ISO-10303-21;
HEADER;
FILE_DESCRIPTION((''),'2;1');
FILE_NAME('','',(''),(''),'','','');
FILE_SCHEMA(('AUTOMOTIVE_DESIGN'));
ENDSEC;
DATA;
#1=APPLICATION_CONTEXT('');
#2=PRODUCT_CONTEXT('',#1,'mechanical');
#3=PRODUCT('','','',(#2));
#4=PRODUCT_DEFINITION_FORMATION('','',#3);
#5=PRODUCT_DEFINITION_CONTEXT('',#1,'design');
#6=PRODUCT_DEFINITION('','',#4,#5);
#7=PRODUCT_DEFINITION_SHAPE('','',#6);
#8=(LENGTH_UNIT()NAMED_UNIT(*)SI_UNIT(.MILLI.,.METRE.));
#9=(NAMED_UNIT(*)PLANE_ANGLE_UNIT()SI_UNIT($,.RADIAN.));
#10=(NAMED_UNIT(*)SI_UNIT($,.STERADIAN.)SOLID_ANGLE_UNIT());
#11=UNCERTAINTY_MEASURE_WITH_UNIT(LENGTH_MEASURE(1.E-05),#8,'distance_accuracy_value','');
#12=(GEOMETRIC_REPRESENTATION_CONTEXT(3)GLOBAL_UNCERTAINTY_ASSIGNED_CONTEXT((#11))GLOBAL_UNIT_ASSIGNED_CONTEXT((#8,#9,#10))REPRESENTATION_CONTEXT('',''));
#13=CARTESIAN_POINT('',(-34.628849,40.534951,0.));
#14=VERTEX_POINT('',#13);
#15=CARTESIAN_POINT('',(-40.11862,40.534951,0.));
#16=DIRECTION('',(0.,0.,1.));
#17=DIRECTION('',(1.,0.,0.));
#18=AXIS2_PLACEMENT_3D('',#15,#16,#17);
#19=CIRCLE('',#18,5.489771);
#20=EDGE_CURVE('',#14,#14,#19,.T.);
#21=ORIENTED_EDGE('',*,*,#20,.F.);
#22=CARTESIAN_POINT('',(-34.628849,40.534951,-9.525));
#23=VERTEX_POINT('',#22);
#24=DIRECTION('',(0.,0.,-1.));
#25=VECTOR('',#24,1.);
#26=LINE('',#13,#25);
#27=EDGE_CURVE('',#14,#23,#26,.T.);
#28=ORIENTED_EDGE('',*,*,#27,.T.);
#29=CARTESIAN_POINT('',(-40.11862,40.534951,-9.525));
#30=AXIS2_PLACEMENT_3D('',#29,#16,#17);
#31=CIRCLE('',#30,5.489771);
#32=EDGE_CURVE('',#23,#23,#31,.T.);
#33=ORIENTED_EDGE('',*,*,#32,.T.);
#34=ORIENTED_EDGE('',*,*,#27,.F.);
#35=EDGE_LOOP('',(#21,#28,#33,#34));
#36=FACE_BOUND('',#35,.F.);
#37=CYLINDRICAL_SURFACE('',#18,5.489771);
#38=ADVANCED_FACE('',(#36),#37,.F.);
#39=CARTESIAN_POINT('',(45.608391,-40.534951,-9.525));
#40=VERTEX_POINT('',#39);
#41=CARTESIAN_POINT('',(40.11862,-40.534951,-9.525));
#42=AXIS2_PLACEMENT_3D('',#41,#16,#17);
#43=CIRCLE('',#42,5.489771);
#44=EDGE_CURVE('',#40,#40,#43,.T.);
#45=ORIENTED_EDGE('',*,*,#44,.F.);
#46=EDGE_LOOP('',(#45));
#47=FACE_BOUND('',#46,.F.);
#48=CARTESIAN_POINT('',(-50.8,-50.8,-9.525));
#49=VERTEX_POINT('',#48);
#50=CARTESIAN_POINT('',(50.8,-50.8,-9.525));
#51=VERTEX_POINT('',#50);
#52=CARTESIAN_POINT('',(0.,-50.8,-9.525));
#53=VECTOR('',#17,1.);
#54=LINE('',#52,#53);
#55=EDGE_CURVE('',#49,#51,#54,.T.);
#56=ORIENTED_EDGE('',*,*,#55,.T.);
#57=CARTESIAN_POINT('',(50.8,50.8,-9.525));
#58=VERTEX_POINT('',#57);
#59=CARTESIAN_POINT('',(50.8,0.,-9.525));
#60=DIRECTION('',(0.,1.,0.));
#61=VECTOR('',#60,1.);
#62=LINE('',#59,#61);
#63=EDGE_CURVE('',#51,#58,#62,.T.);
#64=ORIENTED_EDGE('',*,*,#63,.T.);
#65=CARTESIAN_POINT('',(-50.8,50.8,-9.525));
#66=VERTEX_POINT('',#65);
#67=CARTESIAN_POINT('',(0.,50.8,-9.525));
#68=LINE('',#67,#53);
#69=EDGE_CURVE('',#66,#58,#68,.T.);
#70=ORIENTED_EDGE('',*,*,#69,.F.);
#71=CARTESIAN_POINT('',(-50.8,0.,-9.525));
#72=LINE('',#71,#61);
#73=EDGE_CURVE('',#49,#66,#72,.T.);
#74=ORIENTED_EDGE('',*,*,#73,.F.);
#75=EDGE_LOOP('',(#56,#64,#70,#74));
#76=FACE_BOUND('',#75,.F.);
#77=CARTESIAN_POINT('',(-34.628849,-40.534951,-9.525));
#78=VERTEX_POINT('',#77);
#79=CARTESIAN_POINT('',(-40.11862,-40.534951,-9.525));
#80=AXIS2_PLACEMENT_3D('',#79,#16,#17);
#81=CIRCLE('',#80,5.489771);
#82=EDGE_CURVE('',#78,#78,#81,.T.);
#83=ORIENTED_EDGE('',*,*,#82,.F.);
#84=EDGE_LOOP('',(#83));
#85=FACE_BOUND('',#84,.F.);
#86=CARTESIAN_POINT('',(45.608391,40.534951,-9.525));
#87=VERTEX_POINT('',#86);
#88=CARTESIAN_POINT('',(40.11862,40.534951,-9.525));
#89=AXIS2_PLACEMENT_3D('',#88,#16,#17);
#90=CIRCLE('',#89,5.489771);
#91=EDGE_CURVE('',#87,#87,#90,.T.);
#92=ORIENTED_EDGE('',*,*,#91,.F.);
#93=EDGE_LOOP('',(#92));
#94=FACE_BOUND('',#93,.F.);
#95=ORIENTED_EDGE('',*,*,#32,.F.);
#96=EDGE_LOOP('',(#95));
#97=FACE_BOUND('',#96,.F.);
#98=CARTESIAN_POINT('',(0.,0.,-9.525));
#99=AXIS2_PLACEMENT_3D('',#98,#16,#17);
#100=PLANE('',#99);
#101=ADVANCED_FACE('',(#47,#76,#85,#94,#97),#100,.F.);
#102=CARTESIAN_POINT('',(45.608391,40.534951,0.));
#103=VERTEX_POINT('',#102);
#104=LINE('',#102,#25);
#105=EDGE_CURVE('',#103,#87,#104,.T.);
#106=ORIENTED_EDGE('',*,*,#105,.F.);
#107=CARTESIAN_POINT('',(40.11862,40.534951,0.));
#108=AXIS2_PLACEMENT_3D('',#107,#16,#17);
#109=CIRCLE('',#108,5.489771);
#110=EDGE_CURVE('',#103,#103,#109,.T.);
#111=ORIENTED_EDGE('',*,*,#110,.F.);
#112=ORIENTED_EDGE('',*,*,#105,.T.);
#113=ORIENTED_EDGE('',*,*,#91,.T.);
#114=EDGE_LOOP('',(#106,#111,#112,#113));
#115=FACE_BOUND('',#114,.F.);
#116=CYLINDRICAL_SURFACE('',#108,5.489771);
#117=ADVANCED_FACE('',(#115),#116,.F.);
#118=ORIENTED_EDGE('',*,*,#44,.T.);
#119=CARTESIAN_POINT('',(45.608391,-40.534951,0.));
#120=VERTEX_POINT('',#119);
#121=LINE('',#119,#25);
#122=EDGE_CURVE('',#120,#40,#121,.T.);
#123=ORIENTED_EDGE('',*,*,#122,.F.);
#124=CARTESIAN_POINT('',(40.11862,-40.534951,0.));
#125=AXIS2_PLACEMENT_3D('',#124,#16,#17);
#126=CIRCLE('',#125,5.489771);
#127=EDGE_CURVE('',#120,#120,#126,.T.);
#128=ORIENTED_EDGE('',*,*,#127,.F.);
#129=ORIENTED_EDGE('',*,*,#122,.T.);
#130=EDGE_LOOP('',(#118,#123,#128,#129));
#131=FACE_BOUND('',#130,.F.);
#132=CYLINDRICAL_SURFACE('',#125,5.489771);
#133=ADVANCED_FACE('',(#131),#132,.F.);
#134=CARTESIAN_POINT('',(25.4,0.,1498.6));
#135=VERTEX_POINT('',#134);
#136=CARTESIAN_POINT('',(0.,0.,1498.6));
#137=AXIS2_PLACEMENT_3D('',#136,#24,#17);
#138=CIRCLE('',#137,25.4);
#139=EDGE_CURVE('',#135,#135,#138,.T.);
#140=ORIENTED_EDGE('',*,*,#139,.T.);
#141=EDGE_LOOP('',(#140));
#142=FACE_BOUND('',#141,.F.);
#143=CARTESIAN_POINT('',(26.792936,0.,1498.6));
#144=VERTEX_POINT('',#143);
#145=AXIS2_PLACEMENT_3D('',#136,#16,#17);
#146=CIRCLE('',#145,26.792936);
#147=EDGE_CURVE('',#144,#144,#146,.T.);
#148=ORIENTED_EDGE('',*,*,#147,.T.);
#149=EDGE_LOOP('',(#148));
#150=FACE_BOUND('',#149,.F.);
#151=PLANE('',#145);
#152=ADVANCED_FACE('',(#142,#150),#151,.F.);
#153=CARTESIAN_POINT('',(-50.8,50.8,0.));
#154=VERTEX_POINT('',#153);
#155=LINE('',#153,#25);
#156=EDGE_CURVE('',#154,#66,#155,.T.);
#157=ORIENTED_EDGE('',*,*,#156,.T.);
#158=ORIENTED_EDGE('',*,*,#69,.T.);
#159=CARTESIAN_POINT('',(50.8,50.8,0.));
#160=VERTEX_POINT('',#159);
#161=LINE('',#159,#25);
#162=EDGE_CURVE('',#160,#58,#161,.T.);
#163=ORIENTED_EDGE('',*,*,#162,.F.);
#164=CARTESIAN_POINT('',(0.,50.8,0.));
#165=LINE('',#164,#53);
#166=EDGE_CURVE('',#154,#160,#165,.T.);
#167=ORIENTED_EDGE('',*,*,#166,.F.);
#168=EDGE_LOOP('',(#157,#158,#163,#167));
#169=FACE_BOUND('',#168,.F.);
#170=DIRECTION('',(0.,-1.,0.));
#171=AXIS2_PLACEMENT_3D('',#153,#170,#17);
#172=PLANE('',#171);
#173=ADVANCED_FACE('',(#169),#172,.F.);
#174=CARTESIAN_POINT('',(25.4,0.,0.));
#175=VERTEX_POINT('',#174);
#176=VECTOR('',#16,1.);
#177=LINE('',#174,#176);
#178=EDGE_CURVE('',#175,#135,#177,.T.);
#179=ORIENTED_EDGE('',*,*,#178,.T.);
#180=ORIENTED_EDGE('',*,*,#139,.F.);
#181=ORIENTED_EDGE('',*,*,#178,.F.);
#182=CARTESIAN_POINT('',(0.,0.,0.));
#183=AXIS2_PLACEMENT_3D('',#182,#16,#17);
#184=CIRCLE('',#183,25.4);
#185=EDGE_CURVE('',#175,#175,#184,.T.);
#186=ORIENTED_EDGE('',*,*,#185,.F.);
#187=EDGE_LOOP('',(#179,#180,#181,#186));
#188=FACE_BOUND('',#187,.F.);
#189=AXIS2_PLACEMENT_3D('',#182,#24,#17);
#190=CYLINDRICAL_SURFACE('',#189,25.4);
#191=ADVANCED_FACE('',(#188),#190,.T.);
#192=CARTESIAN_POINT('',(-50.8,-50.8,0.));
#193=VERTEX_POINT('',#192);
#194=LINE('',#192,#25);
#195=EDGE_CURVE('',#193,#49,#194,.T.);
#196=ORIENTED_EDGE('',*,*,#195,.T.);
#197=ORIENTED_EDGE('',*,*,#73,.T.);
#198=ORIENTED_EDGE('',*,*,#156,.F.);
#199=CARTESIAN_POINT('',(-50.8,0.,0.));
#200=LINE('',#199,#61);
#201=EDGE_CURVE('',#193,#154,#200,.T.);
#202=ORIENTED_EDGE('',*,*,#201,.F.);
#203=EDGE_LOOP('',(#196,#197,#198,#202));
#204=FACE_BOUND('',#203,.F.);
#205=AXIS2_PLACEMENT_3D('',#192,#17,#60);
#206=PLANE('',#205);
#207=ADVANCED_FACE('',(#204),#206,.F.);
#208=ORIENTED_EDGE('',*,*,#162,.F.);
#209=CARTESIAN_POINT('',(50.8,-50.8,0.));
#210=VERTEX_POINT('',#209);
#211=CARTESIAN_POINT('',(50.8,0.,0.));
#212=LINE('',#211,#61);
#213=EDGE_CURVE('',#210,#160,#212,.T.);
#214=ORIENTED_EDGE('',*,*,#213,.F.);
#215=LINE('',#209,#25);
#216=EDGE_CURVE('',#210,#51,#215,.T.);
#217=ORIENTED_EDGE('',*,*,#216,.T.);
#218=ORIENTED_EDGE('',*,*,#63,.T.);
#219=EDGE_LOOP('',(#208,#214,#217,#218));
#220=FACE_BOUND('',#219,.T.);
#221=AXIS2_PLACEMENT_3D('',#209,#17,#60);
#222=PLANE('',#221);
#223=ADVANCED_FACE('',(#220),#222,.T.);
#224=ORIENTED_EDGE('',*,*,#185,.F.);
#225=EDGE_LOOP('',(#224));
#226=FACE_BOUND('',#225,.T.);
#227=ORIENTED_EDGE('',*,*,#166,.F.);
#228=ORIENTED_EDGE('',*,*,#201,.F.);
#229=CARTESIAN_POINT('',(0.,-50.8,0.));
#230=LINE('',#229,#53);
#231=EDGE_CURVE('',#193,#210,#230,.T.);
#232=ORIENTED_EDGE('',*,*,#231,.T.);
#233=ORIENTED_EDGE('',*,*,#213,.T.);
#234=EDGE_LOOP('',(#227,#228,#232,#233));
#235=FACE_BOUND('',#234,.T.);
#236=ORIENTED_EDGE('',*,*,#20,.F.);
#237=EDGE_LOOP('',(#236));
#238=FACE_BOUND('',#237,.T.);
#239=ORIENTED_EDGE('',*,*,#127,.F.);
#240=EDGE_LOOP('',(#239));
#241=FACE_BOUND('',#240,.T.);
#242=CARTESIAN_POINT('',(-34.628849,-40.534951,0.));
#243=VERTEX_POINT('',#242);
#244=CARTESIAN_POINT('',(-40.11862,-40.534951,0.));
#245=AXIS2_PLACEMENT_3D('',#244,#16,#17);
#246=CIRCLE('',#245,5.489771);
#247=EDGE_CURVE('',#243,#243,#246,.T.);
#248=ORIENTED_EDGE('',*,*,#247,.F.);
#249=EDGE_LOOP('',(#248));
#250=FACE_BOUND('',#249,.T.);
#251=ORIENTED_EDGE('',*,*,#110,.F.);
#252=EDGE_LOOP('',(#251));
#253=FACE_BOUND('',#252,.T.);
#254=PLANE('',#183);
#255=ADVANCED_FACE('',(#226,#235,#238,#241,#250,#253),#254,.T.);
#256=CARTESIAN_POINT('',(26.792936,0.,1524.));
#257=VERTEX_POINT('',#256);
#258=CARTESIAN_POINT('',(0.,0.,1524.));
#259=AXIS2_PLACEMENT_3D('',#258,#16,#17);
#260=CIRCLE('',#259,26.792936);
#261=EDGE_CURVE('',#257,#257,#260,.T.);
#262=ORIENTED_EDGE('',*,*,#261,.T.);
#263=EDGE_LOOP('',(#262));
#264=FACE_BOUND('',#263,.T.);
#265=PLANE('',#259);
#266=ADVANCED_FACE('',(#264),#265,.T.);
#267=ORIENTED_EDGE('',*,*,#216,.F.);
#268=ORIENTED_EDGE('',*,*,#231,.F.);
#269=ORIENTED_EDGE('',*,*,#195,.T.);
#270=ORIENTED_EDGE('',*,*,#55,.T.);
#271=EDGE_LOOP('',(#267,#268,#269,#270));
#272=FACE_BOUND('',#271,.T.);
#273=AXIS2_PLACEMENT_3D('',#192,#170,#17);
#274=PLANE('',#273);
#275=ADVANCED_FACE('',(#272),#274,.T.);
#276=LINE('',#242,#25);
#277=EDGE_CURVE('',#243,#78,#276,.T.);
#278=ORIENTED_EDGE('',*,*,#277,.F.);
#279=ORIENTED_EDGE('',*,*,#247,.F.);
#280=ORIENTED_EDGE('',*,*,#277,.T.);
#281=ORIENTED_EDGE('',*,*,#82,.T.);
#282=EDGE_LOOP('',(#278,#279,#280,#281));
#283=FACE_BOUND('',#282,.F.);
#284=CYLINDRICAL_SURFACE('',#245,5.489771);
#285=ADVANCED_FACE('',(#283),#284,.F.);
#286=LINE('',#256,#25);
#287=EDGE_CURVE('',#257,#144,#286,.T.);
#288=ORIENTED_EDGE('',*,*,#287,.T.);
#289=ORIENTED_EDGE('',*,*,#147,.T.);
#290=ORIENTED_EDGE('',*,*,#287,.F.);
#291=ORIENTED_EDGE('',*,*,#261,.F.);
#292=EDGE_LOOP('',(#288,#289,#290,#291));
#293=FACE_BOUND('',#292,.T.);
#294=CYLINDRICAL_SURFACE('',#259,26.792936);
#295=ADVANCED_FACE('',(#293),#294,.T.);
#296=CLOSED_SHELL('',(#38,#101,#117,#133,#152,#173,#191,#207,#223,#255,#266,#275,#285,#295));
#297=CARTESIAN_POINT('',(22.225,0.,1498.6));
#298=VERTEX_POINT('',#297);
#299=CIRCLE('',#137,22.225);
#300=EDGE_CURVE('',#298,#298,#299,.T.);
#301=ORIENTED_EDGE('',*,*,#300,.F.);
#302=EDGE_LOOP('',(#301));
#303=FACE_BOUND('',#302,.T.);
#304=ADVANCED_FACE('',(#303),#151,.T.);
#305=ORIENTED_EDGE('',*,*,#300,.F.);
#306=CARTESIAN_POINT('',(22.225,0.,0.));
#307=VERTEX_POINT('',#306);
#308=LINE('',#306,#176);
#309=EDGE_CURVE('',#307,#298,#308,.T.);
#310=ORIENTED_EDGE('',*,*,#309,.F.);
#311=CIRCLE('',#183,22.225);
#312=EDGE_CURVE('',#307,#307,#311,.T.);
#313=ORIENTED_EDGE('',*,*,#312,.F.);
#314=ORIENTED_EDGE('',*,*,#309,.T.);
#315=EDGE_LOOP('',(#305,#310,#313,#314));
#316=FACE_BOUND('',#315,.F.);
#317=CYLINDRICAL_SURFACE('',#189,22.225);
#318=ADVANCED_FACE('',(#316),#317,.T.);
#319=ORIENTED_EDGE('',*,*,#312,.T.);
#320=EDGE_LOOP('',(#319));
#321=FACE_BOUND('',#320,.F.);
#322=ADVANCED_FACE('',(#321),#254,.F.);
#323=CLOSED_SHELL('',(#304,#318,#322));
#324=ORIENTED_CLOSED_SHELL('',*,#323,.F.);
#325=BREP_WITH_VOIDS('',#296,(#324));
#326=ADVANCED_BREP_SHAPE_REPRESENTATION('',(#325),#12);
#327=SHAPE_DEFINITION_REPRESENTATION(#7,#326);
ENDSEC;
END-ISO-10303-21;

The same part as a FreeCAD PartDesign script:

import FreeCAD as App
import Part
import Sketcher
from FreeCAD import Vector
Q = App.Units.Quantity

doc = App.newDocument("Part")
body = doc.addObject("PartDesign::Body", "Body")

sketch1 = body.newObject("Sketcher::SketchObject", "Sketch")
sketch1.AttachmentSupport = (doc.getObject("XY_Plane"), [""])
sketch1.MapMode = "FlatFace"
sketch1.addGeometry(Part.Circle(Vector(0, 0, 0), Vector(0, 0, 1), 25.4), False)
sketch1.addGeometry(Part.Circle(Vector(0, 0, 0), Vector(0, 0, 1), 22.225), False)
sketch1.addConstraint(Sketcher.Constraint("Coincident", 0, 3, -1, 1))
sketch1.addConstraint(Sketcher.Constraint("Coincident", 1, 3, -1, 1))
sketch1.addConstraint(Sketcher.Constraint("Diameter", 0, Q("2 in")))
sketch1.addConstraint(Sketcher.Constraint("Diameter", 1, Q("1.75 in")))
pad1 = body.newObject("PartDesign::Pad", "Pad")
pad1.Profile = sketch1
pad1.Length = Q("60 in")

sketch2 = body.newObject("Sketcher::SketchObject", "Sketch001")
sketch2.AttachmentSupport = (doc.getObject("XY_Plane"), [""])
sketch2.MapMode = "FlatFace"
sketch2.addGeometry(Part.LineSegment(Vector(-50.8, 50.8, 0), Vector(-50.8, -50.8, 0)), False)
sketch2.addGeometry(Part.LineSegment(Vector(-50.8, -50.8, 0), Vector(50.8, -50.8, 0)), False)
sketch2.addGeometry(Part.LineSegment(Vector(50.8, -50.8, 0), Vector(50.8, 50.8, 0)), False)
sketch2.addGeometry(Part.LineSegment(Vector(50.8, 50.8, 0), Vector(-50.8, 50.8, 0)), False)
sketch2.addGeometry(Part.Circle(Vector(-40.11862, -40.534951, 0), Vector(0, 0, 1), 5.489771), False)
sketch2.addGeometry(Part.Circle(Vector(40.11862, -40.534951, 0), Vector(0, 0, 1), 5.489771), False)
sketch2.addGeometry(Part.Circle(Vector(-40.11862, 40.534951, 0), Vector(0, 0, 1), 5.489771), False)
sketch2.addGeometry(Part.Circle(Vector(40.11862, 40.534951, 0), Vector(0, 0, 1), 5.489771), False)
sketch2.addConstraint(Sketcher.Constraint("Coincident", 0, 2, 1, 1))
sketch2.addConstraint(Sketcher.Constraint("Coincident", 1, 2, 2, 1))
sketch2.addConstraint(Sketcher.Constraint("Coincident", 2, 2, 3, 1))
sketch2.addConstraint(Sketcher.Constraint("Coincident", 3, 2, 0, 1))
sketch2.addConstraint(Sketcher.Constraint("Vertical", 0))
sketch2.addConstraint(Sketcher.Constraint("Horizontal", 1))
sketch2.addConstraint(Sketcher.Constraint("Vertical", 2))
sketch2.addConstraint(Sketcher.Constraint("Horizontal", 3))
sketch2.addConstraint(Sketcher.Constraint("Equal", 4, 5))
sketch2.addConstraint(Sketcher.Constraint("Equal", 5, 6))
sketch2.addConstraint(Sketcher.Constraint("Equal", 6, 7))
sketch2.addConstraint(Sketcher.Constraint("Symmetric", 5, 3, 6, 3, -1, 1))
sketch2.addConstraint(Sketcher.Constraint("Symmetric", 4, 3, 7, 3, -1, 1))
sketch2.addConstraint(Sketcher.Constraint("Symmetric", 0, 2, 2, 2, -1, 1))
sketch2.addConstraint(Sketcher.Constraint("Symmetric", 4, 3, 5, 3, -2))
sketch2.addConstraint(Sketcher.Constraint("Equal", 3, 0))
sketch2.addConstraint(Sketcher.Constraint("DistanceX", 1, 1, 1, 2, Q("4 in")))
sketch2.addConstraint(Sketcher.Constraint("Diameter", 4, 10.979542))
sketch2.addConstraint(Sketcher.Constraint("DistanceY", 4, 3, 6, 3, 81.069902))
sketch2.addConstraint(Sketcher.Constraint("DistanceX", 4, 3, -1, 1, 40.11862))
pad2 = body.newObject("PartDesign::Pad", "Pad001")
pad2.Profile = sketch2
pad2.Length = Q("0.375 in")
pad2.Reversed = True

sketch3 = body.newObject("Sketcher::SketchObject", "Sketch002")
sketch3.AttachmentSupport = (doc.getObject("XY_Plane"), [""])
sketch3.MapMode = "FlatFace"
sketch3.AttachmentOffset = App.Placement(Vector(0, 0, 60 * 25.4), App.Rotation())
sketch3.addGeometry(Part.Circle(Vector(0, 0, 0), Vector(0, 0, 1), 26.792936), False)
sketch3.addConstraint(Sketcher.Constraint("Coincident", 0, 3, -1, 1))
sketch3.addConstraint(Sketcher.Constraint("Diameter", 0, 53.585872))
pad3 = body.newObject("PartDesign::Pad", "Pad002")
pad3.Profile = sketch3
pad3.Length = Q("1 in")
pad3.Reversed = True

doc.recompute()
